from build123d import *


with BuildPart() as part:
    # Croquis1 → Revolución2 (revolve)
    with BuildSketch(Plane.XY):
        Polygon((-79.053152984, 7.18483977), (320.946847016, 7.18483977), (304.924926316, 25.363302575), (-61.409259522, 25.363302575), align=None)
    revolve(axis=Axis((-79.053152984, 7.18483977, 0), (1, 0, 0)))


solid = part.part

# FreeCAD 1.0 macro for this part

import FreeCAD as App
import Part
import Sketcher
from FreeCAD import Vector

doc = App.newDocument("Part")
body = doc.addObject("PartDesign::Body", "Body")

# Sketch on XY plane
sketch1 = body.newObject("Sketcher::SketchObject", "Sketch")
sketch1.AttachmentSupport = (doc.getObject("XY_Plane"), [""])
sketch1.MapMode = "FlatFace"
sketch1.addGeometry([
    Part.LineSegment(Vector(-79, 7, 0), Vector(321, 7, 0)),
    Part.LineSegment(Vector(321, 7, 0), Vector(305, 25, 0)),
    Part.LineSegment(Vector(305, 25, 0), Vector(-61, 25, 0)),
    Part.LineSegment(Vector(-61, 25, 0), Vector(-79, 7, 0)),
], False)
sketch1.addGeometry(Part.LineSegment(Vector(-79, 7, 0), Vector(321, 7, 0)), True)  # axis
sketch1.addConstraint([
    Sketcher.Constraint("Coincident", 0, 2, 1, 1),
    Sketcher.Constraint("Coincident", 1, 2, 2, 1),
    Sketcher.Constraint("Coincident", 2, 2, 3, 1),
    Sketcher.Constraint("Coincident", 3, 2, 0, 1),
    Sketcher.Constraint("Horizontal", 0),
    Sketcher.Constraint("Horizontal", 2),
    Sketcher.Constraint("Horizontal", 4),
    Sketcher.Constraint("Coincident", 4, 1, 3, 2),
    Sketcher.Constraint("Equal", 0, 4),
    Sketcher.Constraint("DistanceX", 0, 1, 0, 2, 400.0),
    Sketcher.Constraint("Distance", 3, 25.333051),
    Sketcher.Constraint("DistanceX", 2, 2, 2, 1, 366.334186),
    Sketcher.Constraint("DistanceY", -1, 1, 0, 2, 7.18484),
    Sketcher.Constraint("DistanceX", 2, 2, -1, 1, 61.40926),
    Sketcher.Constraint("DistanceX", 1, 2, 0, 2, 16.021921),
])
revolution = body.newObject("PartDesign::Revolution", "Revolution")
revolution.Profile = sketch1
revolution.ReferenceAxis = (sketch1, ["Axis0"])
revolution.Angle = 360

doc.recompute()
